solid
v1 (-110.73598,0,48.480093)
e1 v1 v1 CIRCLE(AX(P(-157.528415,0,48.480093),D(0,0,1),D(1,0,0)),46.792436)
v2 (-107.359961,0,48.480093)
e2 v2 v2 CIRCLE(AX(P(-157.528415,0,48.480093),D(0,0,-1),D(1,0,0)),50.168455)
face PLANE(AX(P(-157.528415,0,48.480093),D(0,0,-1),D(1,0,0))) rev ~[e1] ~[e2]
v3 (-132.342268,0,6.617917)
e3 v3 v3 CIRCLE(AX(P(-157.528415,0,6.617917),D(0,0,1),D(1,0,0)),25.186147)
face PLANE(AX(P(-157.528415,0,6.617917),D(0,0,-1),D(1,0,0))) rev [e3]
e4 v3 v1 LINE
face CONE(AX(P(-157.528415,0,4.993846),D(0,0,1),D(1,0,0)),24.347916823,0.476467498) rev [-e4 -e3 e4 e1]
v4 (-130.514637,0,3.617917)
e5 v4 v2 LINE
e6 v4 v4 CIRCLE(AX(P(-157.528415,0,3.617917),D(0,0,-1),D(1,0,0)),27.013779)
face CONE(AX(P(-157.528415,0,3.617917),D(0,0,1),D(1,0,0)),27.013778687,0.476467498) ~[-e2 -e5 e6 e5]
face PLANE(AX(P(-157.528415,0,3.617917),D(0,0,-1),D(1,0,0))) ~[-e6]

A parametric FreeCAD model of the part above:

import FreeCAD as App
import Part
import Sketcher

V = App.Vector


def faces_at(feature, points):
    """Names of the faces that lie closest to the given points."""
    faces = feature.Shape.Faces
    near = lambda p: min(range(len(faces)), key=lambda i: faces[i].distToShape(Part.Vertex(*p))[0])
    return sorted({f"Face{near(p) + 1}" for p in points})

doc = App.newDocument("Part")
body = doc.addObject("PartDesign::Body", "Body")

sketch1 = body.newObject("Sketcher::SketchObject", "Sketch")
sketch1.AttachmentSupport = (doc.getObject("XZ_Plane"), [""])
sketch1.MapMode = "FlatFace"
sketch1.addGeometry([
    Part.LineSegment(V(-107, 48, 0), V(-158, 48, 0)),
    Part.LineSegment(V(-158, 48, 0), V(-158, 4, 0)),
    Part.LineSegment(V(-158, 4, 0), V(-131, 4, 0)),
    Part.LineSegment(V(-131, 4, 0), V(-107, 48, 0)),
], False)
sketch1.addGeometry(Part.LineSegment(V(-158, 48, 0), V(-158, 4, 0)), True)
sketch1.addConstraint([
    Sketcher.Constraint("Coincident", 0, 2, 1, 1),
    Sketcher.Constraint("Coincident", 1, 2, 2, 1),
    Sketcher.Constraint("Coincident", 2, 2, 3, 1),
    Sketcher.Constraint("Coincident", 3, 2, 0, 1),
    Sketcher.Constraint("Horizontal", 0),
    Sketcher.Constraint("Vertical", 1),
    Sketcher.Constraint("Horizontal", 2),
    Sketcher.Constraint("Vertical", 4),
    Sketcher.Constraint("Coincident", 4, 1, 0, 2),
    Sketcher.Constraint("Horizontal", 2, 2, 4, 2),
    Sketcher.Constraint("DistanceX", 2, 1, 2, 2, 27.013779),
    Sketcher.Constraint("DistanceX", 0, 2, 0, 1, 50.168455),
    Sketcher.Constraint("DistanceY", 1, 2, 1, 1, 44.862176),
    Sketcher.Constraint("DistanceX", 3, 2, -1, 1, 107.359961),
    Sketcher.Constraint("DistanceY", -1, 1, 0, 2, 48.480093),
])
revolution = body.newObject("PartDesign::Revolution", "Revolution")
revolution.Profile = sketch1
revolution.ReferenceAxis = (sketch1, ["Axis0"])
revolution.Angle = 360
doc.recompute()

thickness = body.newObject("PartDesign::Thickness", "Thickness")
thickness.Base = (revolution, faces_at(revolution, [(-157.528, 0, 48.48)]))
thickness.Value = 3
thickness.Reversed = True
thickness.Join = "Arc"

doc.recompute()
